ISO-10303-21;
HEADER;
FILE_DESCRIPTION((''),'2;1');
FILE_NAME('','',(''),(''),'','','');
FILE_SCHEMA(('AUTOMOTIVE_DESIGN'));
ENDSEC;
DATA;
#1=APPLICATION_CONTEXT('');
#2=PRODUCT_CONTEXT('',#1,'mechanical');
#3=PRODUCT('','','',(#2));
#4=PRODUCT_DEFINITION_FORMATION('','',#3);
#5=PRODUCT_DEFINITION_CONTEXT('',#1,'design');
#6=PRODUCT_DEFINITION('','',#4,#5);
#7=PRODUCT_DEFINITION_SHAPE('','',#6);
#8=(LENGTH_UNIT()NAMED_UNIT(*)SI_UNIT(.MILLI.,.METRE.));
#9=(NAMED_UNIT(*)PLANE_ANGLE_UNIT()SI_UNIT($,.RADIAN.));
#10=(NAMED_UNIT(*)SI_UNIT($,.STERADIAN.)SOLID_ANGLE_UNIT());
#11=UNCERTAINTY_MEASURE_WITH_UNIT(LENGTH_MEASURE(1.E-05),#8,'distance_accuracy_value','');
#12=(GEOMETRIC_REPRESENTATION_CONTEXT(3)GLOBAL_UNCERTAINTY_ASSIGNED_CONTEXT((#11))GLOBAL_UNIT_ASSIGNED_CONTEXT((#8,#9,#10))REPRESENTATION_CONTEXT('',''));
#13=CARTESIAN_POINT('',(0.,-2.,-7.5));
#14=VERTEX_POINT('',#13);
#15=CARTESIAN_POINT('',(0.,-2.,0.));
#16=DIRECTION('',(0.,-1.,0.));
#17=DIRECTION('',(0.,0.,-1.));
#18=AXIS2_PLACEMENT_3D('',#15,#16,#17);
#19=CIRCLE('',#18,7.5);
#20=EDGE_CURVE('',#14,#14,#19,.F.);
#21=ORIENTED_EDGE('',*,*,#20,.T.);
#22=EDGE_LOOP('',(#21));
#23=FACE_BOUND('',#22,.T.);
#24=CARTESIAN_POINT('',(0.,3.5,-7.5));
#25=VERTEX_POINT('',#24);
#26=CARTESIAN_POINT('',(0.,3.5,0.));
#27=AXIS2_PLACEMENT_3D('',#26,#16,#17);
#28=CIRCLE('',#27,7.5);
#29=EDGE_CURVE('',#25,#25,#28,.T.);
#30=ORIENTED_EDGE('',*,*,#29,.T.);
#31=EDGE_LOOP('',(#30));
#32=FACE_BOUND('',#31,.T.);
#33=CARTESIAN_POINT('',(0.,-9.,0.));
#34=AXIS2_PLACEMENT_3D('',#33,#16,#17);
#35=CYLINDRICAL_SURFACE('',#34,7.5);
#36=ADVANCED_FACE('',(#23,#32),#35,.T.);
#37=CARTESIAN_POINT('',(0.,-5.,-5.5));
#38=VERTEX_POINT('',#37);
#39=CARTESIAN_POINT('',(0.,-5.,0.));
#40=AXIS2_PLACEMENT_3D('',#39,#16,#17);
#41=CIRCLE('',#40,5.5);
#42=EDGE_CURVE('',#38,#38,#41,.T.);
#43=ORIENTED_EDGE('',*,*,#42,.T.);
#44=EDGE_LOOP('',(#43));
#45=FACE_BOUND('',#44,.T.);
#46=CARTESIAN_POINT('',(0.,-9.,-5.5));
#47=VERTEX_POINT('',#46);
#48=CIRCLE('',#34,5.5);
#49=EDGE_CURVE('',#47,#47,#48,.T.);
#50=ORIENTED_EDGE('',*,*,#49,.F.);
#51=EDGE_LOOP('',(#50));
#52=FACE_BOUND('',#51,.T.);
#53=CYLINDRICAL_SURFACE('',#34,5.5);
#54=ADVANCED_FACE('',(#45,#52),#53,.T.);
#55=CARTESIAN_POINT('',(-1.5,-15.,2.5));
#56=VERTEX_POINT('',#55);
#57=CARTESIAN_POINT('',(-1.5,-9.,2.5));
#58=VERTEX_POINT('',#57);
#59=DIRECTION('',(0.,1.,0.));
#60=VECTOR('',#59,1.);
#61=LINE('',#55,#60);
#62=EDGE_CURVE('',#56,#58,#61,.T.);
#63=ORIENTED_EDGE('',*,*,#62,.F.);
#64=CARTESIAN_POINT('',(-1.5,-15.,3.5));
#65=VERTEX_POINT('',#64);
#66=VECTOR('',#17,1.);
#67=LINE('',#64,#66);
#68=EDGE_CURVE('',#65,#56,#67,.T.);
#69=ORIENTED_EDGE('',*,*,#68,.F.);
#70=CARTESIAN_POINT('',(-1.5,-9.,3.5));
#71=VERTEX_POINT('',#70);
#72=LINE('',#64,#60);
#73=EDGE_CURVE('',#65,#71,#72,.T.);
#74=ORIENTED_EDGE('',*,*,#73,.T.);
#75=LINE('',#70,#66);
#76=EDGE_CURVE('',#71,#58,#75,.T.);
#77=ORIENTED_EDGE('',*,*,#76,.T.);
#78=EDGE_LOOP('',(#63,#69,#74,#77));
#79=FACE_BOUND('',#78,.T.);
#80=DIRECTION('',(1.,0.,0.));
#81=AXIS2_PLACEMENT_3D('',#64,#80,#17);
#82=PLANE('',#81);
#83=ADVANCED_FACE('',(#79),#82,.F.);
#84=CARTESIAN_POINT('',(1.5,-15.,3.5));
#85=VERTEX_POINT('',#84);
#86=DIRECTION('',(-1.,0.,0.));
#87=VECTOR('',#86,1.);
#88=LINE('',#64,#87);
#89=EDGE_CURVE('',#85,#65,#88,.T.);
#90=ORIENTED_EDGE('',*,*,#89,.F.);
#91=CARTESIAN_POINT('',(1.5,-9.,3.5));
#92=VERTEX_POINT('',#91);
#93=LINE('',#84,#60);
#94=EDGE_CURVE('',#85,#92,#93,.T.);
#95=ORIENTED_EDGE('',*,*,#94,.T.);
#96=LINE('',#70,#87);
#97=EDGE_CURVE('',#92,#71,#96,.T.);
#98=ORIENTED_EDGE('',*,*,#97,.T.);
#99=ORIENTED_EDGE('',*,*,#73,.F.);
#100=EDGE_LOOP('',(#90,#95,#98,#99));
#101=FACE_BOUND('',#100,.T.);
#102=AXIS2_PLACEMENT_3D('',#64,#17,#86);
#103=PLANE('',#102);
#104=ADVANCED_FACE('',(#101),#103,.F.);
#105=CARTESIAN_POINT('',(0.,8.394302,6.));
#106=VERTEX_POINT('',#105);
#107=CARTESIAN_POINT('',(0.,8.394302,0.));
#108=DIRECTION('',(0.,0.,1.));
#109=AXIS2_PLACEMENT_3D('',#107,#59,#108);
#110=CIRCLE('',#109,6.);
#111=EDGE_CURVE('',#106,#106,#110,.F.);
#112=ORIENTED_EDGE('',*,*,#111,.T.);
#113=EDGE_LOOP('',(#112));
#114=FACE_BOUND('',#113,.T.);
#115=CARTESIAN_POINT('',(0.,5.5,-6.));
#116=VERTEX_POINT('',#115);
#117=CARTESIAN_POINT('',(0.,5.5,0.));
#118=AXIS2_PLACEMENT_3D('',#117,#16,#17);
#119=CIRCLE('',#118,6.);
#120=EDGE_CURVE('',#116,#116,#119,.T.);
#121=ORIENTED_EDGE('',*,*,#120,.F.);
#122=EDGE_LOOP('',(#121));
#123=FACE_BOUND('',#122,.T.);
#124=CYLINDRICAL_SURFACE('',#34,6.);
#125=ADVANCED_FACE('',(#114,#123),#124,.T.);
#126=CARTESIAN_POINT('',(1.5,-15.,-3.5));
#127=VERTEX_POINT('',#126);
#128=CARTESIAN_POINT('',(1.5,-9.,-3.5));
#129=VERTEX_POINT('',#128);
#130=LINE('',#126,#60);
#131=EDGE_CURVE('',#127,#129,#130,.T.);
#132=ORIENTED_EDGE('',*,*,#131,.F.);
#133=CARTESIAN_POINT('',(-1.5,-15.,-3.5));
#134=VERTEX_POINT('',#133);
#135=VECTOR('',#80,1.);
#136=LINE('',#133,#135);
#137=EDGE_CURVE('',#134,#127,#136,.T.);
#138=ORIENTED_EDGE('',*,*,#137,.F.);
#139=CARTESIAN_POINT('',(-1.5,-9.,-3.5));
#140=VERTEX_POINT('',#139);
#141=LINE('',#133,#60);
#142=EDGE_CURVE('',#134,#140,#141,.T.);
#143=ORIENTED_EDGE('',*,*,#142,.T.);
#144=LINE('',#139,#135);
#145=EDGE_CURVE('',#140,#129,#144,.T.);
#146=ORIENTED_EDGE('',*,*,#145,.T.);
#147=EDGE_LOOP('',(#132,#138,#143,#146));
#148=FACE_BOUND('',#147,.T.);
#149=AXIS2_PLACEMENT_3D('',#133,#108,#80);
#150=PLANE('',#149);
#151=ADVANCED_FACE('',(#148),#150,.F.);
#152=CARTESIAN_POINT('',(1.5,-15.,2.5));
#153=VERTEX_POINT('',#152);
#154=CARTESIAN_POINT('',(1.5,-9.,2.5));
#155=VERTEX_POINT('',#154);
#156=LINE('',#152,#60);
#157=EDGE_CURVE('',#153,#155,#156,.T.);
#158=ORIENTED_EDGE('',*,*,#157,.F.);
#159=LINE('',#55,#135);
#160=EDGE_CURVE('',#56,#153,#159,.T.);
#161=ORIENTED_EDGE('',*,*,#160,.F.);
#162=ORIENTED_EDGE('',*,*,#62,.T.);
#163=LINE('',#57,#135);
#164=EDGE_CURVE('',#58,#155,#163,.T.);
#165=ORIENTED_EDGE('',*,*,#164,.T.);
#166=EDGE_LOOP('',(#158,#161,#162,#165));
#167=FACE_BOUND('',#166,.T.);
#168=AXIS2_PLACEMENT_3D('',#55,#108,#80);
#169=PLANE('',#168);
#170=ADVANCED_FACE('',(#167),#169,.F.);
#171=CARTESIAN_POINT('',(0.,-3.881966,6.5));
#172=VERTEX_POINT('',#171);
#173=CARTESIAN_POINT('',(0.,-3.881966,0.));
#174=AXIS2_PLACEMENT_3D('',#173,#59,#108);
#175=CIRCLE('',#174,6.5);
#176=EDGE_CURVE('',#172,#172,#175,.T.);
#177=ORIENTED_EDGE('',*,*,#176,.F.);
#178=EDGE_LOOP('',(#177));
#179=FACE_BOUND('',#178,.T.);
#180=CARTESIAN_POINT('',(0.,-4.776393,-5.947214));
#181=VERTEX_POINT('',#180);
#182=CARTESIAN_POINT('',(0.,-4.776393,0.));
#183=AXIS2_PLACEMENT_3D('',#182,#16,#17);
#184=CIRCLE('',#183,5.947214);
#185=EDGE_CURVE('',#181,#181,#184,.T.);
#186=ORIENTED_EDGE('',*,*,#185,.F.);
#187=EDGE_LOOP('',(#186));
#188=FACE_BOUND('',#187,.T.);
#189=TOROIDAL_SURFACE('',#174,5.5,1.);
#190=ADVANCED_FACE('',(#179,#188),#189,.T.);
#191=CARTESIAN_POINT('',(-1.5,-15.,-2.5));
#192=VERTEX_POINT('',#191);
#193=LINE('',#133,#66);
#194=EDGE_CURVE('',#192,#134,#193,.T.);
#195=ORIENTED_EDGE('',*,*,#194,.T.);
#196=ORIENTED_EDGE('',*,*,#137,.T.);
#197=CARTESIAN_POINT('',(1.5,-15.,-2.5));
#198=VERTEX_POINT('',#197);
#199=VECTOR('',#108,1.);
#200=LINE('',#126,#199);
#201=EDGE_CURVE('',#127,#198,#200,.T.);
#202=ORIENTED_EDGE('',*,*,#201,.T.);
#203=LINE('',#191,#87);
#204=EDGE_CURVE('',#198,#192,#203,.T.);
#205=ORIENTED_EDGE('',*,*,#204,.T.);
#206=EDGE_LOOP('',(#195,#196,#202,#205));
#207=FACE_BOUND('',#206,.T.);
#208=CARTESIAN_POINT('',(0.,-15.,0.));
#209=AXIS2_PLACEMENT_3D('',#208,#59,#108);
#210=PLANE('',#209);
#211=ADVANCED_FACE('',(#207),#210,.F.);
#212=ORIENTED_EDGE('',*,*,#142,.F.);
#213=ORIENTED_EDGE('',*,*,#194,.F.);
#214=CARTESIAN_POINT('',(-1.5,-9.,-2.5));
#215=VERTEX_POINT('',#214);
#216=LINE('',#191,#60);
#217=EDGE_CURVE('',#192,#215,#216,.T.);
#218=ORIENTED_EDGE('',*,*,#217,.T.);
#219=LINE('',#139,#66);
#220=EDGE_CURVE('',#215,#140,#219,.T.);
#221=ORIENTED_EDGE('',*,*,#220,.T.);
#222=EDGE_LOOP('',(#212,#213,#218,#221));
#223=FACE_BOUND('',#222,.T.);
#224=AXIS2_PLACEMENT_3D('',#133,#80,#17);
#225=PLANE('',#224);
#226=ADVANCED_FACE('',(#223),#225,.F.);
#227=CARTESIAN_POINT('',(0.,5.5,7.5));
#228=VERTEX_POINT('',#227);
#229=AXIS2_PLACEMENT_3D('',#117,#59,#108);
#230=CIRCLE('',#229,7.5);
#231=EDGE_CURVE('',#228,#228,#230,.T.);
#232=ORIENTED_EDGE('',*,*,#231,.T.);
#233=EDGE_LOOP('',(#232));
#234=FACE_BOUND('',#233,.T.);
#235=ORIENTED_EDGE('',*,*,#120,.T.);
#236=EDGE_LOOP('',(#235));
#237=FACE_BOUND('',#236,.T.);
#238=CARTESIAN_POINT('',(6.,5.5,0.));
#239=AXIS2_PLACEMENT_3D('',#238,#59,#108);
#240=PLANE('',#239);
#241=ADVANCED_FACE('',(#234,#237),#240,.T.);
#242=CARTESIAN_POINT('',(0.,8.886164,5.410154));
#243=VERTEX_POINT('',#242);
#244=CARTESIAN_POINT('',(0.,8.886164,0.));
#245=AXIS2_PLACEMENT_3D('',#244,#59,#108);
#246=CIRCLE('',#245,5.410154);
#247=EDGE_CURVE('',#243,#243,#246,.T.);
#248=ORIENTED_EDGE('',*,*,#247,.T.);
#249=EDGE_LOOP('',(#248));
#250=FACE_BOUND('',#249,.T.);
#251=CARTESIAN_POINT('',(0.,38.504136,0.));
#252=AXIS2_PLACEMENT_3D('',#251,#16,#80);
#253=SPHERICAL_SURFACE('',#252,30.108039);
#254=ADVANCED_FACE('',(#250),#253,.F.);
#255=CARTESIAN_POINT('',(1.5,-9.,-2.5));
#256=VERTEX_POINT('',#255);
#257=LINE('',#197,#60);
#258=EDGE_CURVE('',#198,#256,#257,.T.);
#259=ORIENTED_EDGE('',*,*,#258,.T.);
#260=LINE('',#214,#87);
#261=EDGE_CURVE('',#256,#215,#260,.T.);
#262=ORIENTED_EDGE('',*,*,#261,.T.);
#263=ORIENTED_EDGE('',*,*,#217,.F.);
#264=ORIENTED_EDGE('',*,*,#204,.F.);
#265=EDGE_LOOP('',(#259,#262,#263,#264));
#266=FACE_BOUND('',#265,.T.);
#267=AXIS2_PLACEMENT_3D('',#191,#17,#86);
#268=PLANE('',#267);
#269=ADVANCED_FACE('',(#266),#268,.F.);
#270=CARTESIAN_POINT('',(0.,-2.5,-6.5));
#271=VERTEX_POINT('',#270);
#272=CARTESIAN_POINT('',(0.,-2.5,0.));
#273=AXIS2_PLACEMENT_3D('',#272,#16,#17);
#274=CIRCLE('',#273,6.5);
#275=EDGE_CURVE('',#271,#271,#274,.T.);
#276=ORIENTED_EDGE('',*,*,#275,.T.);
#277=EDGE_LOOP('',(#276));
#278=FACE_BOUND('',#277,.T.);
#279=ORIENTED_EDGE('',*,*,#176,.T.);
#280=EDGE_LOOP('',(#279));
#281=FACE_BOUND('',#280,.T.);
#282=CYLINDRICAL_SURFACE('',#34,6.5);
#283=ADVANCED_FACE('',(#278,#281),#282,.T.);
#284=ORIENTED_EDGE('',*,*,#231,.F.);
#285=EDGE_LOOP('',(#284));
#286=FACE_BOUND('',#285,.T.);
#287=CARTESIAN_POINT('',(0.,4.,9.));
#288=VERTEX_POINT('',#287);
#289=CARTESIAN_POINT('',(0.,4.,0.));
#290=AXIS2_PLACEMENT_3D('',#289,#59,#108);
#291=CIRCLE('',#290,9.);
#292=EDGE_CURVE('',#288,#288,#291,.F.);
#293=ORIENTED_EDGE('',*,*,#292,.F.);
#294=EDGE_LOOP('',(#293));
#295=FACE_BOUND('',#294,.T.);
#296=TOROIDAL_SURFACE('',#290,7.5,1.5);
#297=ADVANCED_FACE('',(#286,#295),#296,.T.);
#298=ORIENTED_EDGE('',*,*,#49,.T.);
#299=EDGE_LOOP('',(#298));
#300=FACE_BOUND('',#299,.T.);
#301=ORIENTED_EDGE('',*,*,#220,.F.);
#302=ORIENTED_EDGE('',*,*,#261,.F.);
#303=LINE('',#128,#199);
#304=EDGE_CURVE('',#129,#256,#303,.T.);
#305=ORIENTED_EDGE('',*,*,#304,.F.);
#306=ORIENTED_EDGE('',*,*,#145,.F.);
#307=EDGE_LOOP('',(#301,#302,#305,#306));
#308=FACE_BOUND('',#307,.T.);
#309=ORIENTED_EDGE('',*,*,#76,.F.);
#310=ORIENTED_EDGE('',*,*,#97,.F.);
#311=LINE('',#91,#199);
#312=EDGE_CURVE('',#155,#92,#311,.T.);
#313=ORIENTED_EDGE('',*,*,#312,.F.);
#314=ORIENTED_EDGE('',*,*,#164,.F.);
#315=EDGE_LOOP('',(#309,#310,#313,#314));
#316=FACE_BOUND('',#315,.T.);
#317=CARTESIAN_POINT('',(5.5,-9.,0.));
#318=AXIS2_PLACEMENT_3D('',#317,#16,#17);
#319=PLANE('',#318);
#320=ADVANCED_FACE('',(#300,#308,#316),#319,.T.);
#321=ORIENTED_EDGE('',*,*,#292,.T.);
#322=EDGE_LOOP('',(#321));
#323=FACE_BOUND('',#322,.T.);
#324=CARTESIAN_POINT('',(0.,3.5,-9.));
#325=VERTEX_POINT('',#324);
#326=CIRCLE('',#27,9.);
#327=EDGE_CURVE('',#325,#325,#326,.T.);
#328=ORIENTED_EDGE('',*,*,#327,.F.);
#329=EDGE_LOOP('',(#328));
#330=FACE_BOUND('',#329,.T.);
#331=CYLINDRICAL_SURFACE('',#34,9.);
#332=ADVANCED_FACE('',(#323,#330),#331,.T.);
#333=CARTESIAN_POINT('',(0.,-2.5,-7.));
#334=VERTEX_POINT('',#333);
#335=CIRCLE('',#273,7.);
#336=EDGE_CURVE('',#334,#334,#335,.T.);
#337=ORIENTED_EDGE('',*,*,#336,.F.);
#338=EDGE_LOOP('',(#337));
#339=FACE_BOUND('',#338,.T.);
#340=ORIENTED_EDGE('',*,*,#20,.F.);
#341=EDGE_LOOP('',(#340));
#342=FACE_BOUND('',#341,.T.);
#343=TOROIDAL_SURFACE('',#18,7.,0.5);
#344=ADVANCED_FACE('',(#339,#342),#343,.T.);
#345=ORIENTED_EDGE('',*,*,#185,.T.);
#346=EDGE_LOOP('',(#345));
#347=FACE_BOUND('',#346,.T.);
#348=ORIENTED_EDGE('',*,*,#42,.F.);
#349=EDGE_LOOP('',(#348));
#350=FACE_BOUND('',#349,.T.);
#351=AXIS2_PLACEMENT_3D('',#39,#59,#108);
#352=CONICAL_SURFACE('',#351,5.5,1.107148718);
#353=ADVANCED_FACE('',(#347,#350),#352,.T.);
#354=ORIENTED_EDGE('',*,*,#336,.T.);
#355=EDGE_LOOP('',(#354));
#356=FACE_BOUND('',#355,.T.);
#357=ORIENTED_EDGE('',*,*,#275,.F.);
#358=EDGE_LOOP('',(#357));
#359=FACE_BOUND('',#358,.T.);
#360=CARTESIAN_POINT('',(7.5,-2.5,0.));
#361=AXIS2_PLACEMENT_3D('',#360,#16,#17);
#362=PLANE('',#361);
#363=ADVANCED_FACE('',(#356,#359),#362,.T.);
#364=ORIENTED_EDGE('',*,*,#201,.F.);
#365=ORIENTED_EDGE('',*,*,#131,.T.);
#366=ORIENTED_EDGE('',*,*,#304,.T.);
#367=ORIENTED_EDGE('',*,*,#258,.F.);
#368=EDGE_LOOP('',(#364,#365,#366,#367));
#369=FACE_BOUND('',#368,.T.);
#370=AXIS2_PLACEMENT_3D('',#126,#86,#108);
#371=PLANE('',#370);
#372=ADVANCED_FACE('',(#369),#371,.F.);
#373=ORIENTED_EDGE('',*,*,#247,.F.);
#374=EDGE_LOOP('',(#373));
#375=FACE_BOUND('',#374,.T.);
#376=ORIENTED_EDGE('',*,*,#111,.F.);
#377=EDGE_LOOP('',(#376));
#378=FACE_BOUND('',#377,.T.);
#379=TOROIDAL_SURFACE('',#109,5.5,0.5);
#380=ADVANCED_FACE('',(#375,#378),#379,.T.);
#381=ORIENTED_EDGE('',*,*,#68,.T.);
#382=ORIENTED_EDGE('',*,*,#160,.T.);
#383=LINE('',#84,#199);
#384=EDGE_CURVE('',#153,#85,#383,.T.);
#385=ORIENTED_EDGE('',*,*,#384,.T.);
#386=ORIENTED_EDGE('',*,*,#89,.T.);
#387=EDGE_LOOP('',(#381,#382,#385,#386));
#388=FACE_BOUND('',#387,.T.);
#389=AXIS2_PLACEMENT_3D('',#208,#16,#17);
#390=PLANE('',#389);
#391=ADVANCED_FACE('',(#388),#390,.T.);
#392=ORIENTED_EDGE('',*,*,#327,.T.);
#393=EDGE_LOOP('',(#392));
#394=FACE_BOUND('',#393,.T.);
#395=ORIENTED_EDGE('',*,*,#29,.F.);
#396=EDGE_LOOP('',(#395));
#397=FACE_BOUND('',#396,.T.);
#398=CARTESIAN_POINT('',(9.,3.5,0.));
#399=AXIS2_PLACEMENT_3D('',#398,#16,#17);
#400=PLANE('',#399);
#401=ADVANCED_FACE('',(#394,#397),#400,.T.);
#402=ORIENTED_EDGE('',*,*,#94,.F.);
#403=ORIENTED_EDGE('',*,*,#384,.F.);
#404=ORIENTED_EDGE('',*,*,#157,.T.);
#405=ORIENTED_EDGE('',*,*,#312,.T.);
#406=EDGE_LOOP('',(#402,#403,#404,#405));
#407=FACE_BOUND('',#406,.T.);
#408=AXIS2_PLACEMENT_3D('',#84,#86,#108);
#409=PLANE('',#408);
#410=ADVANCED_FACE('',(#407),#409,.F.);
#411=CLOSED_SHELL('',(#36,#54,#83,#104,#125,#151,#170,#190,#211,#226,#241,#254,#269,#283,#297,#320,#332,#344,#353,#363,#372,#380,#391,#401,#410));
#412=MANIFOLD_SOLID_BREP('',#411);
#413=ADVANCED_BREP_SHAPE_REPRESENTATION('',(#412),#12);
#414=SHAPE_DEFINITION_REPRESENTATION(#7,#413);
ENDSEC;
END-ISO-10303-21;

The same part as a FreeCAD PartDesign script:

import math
import FreeCAD as App
import Part
import Sketcher

V = App.Vector


def edges_at(feature, points):
    """Names of the edges that pass closest to the given points."""
    edges = feature.Shape.Edges
    near = lambda p: min(range(len(edges)), key=lambda i: edges[i].distToShape(Part.Vertex(*p))[0])
    return sorted({f"Edge{near(p) + 1}" for p in points})


def add_polygon(sketch, points):
    """Adds a closed chain of lines whose ends are joined by coincident constraints."""
    first, n = sketch.GeometryCount, len(points)
    for a, b in zip(points, points[1:] + points[:1]):
        sketch.addGeometry(Part.LineSegment(App.Vector(*a, 0), App.Vector(*b, 0)), False)
    for i in range(n):
        sketch.addConstraint(Sketcher.Constraint("Coincident", first + i, 2, first + (i + 1) % n, 1))

doc = App.newDocument("Part")
body = doc.addObject("PartDesign::Body", "Body")

# Sketch on XY plane
sketch1 = doc.addObject("Sketcher::SketchObject", "Sketch")
body.addObject(sketch1)
sketch1.AttachmentSupport = (doc.XY_Plane, [""])
sketch1.MapMode = "FlatFace"
sketch1.addGeometry(Part.LineSegment(V(6, 5.5, 0), V(6, 9, 0)), False)
sketch1.addGeometry(Part.ArcOfCircle(Part.Circle(V(0, 38.504136, 0), V(0, 0, 1), 30.108039), math.radians(-90), math.radians(-78.505006)), False)
sketch1.addGeometry(Part.LineSegment(V(0, 8.396097, 0), V(0, -9, 0)), False)
sketch1.addGeometry(Part.LineSegment(V(0, -9, 0), V(5.5, -9, 0)), False)
sketch1.addGeometry(Part.LineSegment(V(5.5, -9, 0), V(5.5, -5, 0)), False)
sketch1.addGeometry(Part.LineSegment(V(5.5, -5, 0), V(6.5, -4.5, 0)), False)
sketch1.addGeometry(Part.LineSegment(V(6.5, -4.5, 0), V(6.5, -2.5, 0)), False)
sketch1.addGeometry(Part.LineSegment(V(6.5, -2.5, 0), V(7.5, -2.5, 0)), False)
sketch1.addGeometry(Part.LineSegment(V(7.5, -2.5, 0), V(7.5, 3.5, 0)), False)
sketch1.addGeometry(Part.LineSegment(V(7.5, 3.5, 0), V(9, 3.5, 0)), False)
sketch1.addGeometry(Part.LineSegment(V(9, 3.5, 0), V(9, 5.5, 0)), False)
sketch1.addGeometry(Part.LineSegment(V(9, 5.5, 0), V(6, 5.5, 0)), False)
sketch1.addConstraint(Sketcher.Constraint("Coincident", 0, 2, 1, 2))
sketch1.addConstraint(Sketcher.Constraint("Coincident", 1, 1, 2, 1))
sketch1.addConstraint(Sketcher.Constraint("Coincident", 2, 2, 3, 1))
sketch1.addConstraint(Sketcher.Constraint("Coincident", 3, 2, 4, 1))
sketch1.addConstraint(Sketcher.Constraint("Coincident", 4, 2, 5, 1))
sketch1.addConstraint(Sketcher.Constraint("Coincident", 5, 2, 6, 1))
sketch1.addConstraint(Sketcher.Constraint("Coincident", 6, 2, 7, 1))
sketch1.addConstraint(Sketcher.Constraint("Coincident", 7, 2, 8, 1))
sketch1.addConstraint(Sketcher.Constraint("Coincident", 8, 2, 9, 1))
sketch1.addConstraint(Sketcher.Constraint("Coincident", 9, 2, 10, 1))
sketch1.addConstraint(Sketcher.Constraint("Coincident", 10, 2, 11, 1))
sketch1.addConstraint(Sketcher.Constraint("Coincident", 11, 2, 0, 1))
sketch1.addConstraint(Sketcher.Constraint("Vertical", 0))
sketch1.addConstraint(Sketcher.Constraint("Vertical", 2))
sketch1.addConstraint(Sketcher.Constraint("Horizontal", 3))
sketch1.addConstraint(Sketcher.Constraint("Vertical", 4))
sketch1.addConstraint(Sketcher.Constraint("Vertical", 6))
sketch1.addConstraint(Sketcher.Constraint("Horizontal", 7))
sketch1.addConstraint(Sketcher.Constraint("Vertical", 8))
sketch1.addConstraint(Sketcher.Constraint("Horizontal", 9))
sketch1.addConstraint(Sketcher.Constraint("Vertical", 10))
sketch1.addConstraint(Sketcher.Constraint("Horizontal", 11))
sketch1.addConstraint(Sketcher.Constraint("PointOnObject", 1, 3, -2))
sketch1.addConstraint(Sketcher.Constraint("PointOnObject", 1, 1, -2))
sketch1.addConstraint(Sketcher.Constraint("Equal", 6, 10))
sketch1.addConstraint(Sketcher.Constraint("DistanceX", 7, 1, 7, 2, 1.0))
sketch1.addConstraint(Sketcher.Constraint("DistanceX", 11, 2, 11, 1, 3.0))
sketch1.addConstraint(Sketcher.Constraint("DistanceY", 4, 1, 4, 2, 4.0))
sketch1.addConstraint(Sketcher.Constraint("DistanceY", 6, 1, 6, 2, 2.0))
sketch1.addConstraint(Sketcher.Constraint("DistanceY", 8, 1, 8, 2, 6.0))
sketch1.addConstraint(Sketcher.Constraint("DistanceX", 3, 1, 3, 2, 5.5))
sketch1.addConstraint(Sketcher.Constraint("DistanceX", 9, 1, 9, 2, 1.5))
sketch1.addConstraint(Sketcher.Constraint("DistanceY", 0, 1, 0, 2, 3.5))
sketch1.addConstraint(Sketcher.Constraint("DistanceX", -1, 1, 0, 2, 6.0))
sketch1.addConstraint(Sketcher.Constraint("DistanceY", -1, 1, 0, 2, 9.0))
sketch1.addConstraint(Sketcher.Constraint("DistanceY", 2, 2, -1, 1, 9.0))
sketch1.addConstraint(Sketcher.Constraint("Radius", 1, 30.108039))
revolution = doc.addObject("PartDesign::Revolution", "Revolution")
body.addObject(revolution)
revolution.Profile = sketch1
revolution.ReferenceAxis = (sketch1, ["V_Axis"])
revolution.Angle = 360
doc.recompute()

fillet = doc.addObject("PartDesign::Fillet", "Fillet")
body.addObject(fillet)
fillet.Base = (revolution, edges_at(revolution, [(0, 5.5, 9)]))
fillet.Radius = 1.5
doc.recompute()

fillet2 = doc.addObject("PartDesign::Fillet", "Fillet001")
body.addObject(fillet2)
fillet2.Base = (fillet, edges_at(fillet, [(0, 9, 6)]))
fillet2.Radius = 0.5
doc.recompute()

fillet3 = doc.addObject("PartDesign::Fillet", "Fillet002")
body.addObject(fillet3)
fillet3.Base = (fillet2, edges_at(fillet2, [(0, -4.5, 6.5)]))
fillet3.Radius = 1
doc.recompute()

fillet4 = doc.addObject("PartDesign::Fillet", "Fillet003")
body.addObject(fillet4)
fillet4.Base = (fillet3, edges_at(fillet3, [(0, -2.5, 7.5)]))
fillet4.Radius = 0.5

# Sketch on XZ plane
sketch2 = doc.addObject("Sketcher::SketchObject", "Sketch001")
body.addObject(sketch2)
sketch2.AttachmentSupport = (doc.XZ_Plane, [""])
sketch2.MapMode = "FlatFace"
sketch2.AttachmentOffset = App.Placement(V(0, 0, 9), App.Rotation())
add_polygon(sketch2, [(-1.5, 3.5), (-1.5, 2.5), (1.5, 2.5), (1.5, 3.5)])  # lines 0-3
add_polygon(sketch2, [(-1.5, -2.5), (-1.5, -3.5), (1.5, -3.5), (1.5, -2.5)])  # lines 4-7
sketch2.addConstraint(Sketcher.Constraint("Vertical", 0))
sketch2.addConstraint(Sketcher.Constraint("Horizontal", 1))
sketch2.addConstraint(Sketcher.Constraint("Vertical", 2))
sketch2.addConstraint(Sketcher.Constraint("Horizontal", 3))
sketch2.addConstraint(Sketcher.Constraint("Vertical", 4))
sketch2.addConstraint(Sketcher.Constraint("Horizontal", 5))
sketch2.addConstraint(Sketcher.Constraint("Vertical", 6))
sketch2.addConstraint(Sketcher.Constraint("Horizontal", 7))
sketch2.addConstraint(Sketcher.Constraint("Symmetric", 2, 2, 4, 2, -1, 1))
sketch2.addConstraint(Sketcher.Constraint("Symmetric", 0, 2, 6, 2, -1, 1))
sketch2.addConstraint(Sketcher.Constraint("Vertical", 3, 2, 4, 2))
sketch2.addConstraint(Sketcher.Constraint("DistanceX", 1, 1, 1, 2, 3.0))
sketch2.addConstraint(Sketcher.Constraint("DistanceY", 0, 2, 0, 1, 1.0))
sketch2.addConstraint(Sketcher.Constraint("DistanceY", 4, 2, 0, 2, 6.0))
pad1 = doc.addObject("PartDesign::Pad", "Pad")
body.addObject(pad1)
pad1.Profile = sketch2
pad1.Length = 6

doc.recompute()
